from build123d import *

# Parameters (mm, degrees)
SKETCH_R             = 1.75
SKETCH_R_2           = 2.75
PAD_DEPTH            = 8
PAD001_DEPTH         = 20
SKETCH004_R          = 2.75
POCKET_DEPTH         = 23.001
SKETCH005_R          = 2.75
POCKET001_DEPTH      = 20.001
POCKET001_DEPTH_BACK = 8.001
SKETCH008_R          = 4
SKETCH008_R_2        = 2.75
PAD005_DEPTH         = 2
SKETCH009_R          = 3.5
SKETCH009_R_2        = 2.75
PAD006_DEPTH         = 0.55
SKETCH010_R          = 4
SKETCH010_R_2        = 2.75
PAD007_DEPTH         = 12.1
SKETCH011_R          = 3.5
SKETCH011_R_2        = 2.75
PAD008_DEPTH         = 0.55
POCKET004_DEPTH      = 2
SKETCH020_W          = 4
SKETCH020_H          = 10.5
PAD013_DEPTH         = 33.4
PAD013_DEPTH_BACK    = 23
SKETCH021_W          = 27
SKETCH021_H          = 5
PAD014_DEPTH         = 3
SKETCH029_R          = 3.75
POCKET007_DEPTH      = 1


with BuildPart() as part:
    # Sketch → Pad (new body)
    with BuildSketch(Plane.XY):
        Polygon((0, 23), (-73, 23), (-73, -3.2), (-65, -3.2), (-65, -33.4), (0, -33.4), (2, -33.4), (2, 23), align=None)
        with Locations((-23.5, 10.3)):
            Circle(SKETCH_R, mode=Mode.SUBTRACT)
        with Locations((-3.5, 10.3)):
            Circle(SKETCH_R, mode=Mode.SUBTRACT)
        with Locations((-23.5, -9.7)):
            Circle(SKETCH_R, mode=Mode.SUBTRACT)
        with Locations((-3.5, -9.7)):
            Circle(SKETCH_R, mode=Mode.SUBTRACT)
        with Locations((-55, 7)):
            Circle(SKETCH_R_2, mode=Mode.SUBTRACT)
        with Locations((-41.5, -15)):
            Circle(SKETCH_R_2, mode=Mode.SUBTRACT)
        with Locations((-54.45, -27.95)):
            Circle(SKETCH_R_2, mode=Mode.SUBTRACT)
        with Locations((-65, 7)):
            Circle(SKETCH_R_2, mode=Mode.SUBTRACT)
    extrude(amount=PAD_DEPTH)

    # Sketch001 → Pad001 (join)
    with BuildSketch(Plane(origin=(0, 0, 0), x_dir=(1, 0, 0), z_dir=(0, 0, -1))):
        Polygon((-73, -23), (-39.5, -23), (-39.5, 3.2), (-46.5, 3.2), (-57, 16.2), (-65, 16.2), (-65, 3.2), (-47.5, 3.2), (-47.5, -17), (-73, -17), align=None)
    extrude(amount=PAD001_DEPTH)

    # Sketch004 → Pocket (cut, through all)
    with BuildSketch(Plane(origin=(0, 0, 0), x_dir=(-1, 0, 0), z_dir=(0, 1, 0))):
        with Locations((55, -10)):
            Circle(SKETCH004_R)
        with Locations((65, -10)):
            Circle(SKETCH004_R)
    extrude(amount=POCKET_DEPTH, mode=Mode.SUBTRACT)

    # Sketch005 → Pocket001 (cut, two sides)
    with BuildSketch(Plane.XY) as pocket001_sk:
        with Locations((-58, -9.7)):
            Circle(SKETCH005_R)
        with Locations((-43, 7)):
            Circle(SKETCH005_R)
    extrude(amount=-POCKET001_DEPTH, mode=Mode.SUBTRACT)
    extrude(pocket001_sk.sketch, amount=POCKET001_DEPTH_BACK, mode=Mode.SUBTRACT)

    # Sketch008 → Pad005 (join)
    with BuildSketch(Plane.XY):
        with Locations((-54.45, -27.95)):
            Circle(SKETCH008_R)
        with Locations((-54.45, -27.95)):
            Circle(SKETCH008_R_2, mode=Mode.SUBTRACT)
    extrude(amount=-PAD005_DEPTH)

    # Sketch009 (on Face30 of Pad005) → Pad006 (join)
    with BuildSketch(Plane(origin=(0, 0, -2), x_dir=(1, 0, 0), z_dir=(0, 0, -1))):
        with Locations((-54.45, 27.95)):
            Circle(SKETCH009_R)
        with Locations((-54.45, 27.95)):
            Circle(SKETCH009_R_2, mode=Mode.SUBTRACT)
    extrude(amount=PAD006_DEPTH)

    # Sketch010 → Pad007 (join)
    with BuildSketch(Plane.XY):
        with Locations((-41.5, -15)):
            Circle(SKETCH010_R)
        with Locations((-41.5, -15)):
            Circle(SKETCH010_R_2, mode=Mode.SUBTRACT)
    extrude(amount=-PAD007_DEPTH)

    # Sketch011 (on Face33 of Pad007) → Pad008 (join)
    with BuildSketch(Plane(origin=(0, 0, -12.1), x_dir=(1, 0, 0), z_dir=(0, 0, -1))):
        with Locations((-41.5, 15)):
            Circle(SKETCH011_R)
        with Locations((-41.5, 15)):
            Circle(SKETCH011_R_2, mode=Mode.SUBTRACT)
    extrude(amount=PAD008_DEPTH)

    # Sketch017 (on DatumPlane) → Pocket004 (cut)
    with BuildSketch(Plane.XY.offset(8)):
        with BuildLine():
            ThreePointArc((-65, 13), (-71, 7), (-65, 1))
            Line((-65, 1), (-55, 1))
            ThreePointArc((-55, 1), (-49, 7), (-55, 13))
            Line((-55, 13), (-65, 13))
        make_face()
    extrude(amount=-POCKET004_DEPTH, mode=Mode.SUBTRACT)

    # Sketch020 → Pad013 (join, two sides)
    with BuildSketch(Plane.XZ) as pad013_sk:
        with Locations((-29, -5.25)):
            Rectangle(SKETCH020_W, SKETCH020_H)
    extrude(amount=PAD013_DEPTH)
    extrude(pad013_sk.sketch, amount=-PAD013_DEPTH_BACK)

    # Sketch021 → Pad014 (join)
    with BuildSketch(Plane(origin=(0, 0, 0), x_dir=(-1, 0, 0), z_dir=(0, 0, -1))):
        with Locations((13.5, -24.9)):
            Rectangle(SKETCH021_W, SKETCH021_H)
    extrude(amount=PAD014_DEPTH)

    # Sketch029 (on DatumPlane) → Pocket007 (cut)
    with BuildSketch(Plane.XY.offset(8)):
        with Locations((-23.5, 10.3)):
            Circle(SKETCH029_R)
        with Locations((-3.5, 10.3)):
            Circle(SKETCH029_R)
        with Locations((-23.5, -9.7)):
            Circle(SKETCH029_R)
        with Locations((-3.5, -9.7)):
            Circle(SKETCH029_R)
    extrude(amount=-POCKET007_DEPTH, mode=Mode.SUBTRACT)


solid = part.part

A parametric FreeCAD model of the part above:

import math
import FreeCAD as App
import Part
import Sketcher

V = App.Vector
Q = App.Units.Quantity

doc = App.newDocument("Part")
body = doc.addObject("PartDesign::Body", "Body")

# Sketch on XY plane
sketch1 = body.newObject("Sketcher::SketchObject", "Sketch")
sketch1.AttachmentSupport = (doc.getObject("XY_Plane"), [""])
sketch1.MapMode = "FlatFace"
sketch1.addGeometry([
    Part.LineSegment(V(-73, 23, 0), V(-73, -3.2, 0)),  # 0
    Part.LineSegment(V(-73, -3.2, 0), V(-65, -3.2, 0)),  # 1
    Part.LineSegment(V(-65, -3.2, 0), V(-65, -33.4, 0)),  # 2
    Part.LineSegment(V(-65, -33.4, 0), V(2, -33.4, 0)),  # 3
    Part.LineSegment(V(2, -33.4, 0), V(2, 23, 0)),  # 4
    Part.LineSegment(V(2, 23, 0), V(-73, 23, 0)),  # 5
    Part.Circle(V(-54.45, -27.95, 0), V(0, 0, 1), 2.75),  # 6
    Part.Circle(V(-41.5, -15, 0), V(0, 0, 1), 2.75),  # 7
    Part.Circle(V(-23.5, -9.7, 0), V(0, 0, 1), 1.75),  # 8
    Part.Circle(V(-3.5, -9.7, 0), V(0, 0, 1), 1.75),  # 9
    Part.Circle(V(-65, 7, 0), V(0, 0, 1), 2.75),  # 10
    Part.Circle(V(-55, 7, 0), V(0, 0, 1), 2.75),  # 11
    Part.Circle(V(-23.5, 10.3, 0), V(0, 0, 1), 1.75),  # 12
    Part.Circle(V(-3.5, 10.3, 0), V(0, 0, 1), 1.75),  # 13
], False)
sketch1.addConstraint([
    Sketcher.Constraint("Coincident", 0, 2, 1, 1),
    Sketcher.Constraint("Coincident", 1, 2, 2, 1),
    Sketcher.Constraint("Coincident", 2, 2, 3, 1),
    Sketcher.Constraint("Coincident", 3, 2, 4, 1),
    Sketcher.Constraint("Coincident", 4, 2, 5, 1),
    Sketcher.Constraint("Coincident", 5, 2, 0, 1),
    Sketcher.Constraint("Vertical", 0),
    Sketcher.Constraint("Horizontal", 1),
    Sketcher.Constraint("Vertical", 2),
    Sketcher.Constraint("Horizontal", 3),
    Sketcher.Constraint("Vertical", 4),
    Sketcher.Constraint("Horizontal", 5),
    Sketcher.Constraint("Equal", 6, 7),
    Sketcher.Constraint("Equal", 8, 9),
    Sketcher.Constraint("Equal", 7, 10),
    Sketcher.Constraint("Equal", 10, 11),
    Sketcher.Constraint("Equal", 9, 12),
    Sketcher.Constraint("Equal", 12, 13),
    Sketcher.Constraint("Horizontal", 8, 3, 9, 3),
    Sketcher.Constraint("Horizontal", 10, 3, 11, 3),
    Sketcher.Constraint("Horizontal", 12, 3, 13, 3),
    Sketcher.Constraint("Vertical", 8, 3, 12, 3),
    Sketcher.Constraint("Vertical", 9, 3, 13, 3),
    Sketcher.Constraint("Vertical", 10, 3, 1, 2),
    Sketcher.Constraint("Diameter", 6, Q("5.5 mm")),
    Sketcher.Constraint("Diameter", 8, Q("3.5 mm")),
    Sketcher.Constraint("DistanceX", 1, 1, 1, 2, Q("8 mm")),
    Sketcher.Constraint("DistanceX", 3, 1, 3, 2, Q("67 mm")),
    Sketcher.Constraint("DistanceY", 0, 2, 0, 1, Q("26.2 mm")),
    Sketcher.Constraint("DistanceY", 2, 2, 2, 1, Q("30.2 mm")),
    Sketcher.Constraint("DistanceY", 7, 3, -1, 1, Q("15 mm")),
    Sketcher.Constraint("DistanceX", 10, 3, -1, 1, Q("65 mm")),
    Sketcher.Constraint("DistanceY", -1, 1, 10, 3, Q("7 mm")),
    Sketcher.Constraint("DistanceX", 11, 3, -1, 1, Q("55 mm")),
    Sketcher.Constraint("DistanceY", -1, 1, 4, 2, Q("23 mm")),
    Sketcher.Constraint("DistanceX", 7, 3, 8, 3, Q("18 mm")),
    Sketcher.Constraint("DistanceX", 8, 3, 9, 3, Q("20 mm")),
    Sketcher.Constraint("DistanceY", 8, 3, 12, 3, Q("20 mm")),
    Sketcher.Constraint("DistanceX", 7, 3, -1, 1, Q("41.5 mm")),
    Sketcher.Constraint("DistanceY", 8, 3, -1, 1, Q("9.7 mm")),
    Sketcher.Constraint("DistanceX", 6, 3, -1, 1, Q("54.45 mm")),
    Sketcher.Constraint("DistanceY", 6, 3, -1, 1, Q("27.95 mm")),
])
pad1 = body.newObject("PartDesign::Pad", "Pad")
pad1.Profile = sketch1
pad1.Length = 8

# Sketch on XY plane
sketch2 = body.newObject("Sketcher::SketchObject", "Sketch001")
sketch2.AttachmentSupport = (doc.getObject("XY_Plane"), [""])
sketch2.MapMode = "FlatFace"
sketch2.addGeometry([
    Part.LineSegment(V(-73, 23, 0), V(-39.5, 23, 0)),  # 0
    Part.LineSegment(V(-39.5, 23, 0), V(-39.5, -3.2, 0)),  # 1
    Part.LineSegment(V(-39.5, -3.2, 0), V(-46.5, -3.2, 0)),  # 2
    Part.LineSegment(V(-46.5, -3.2, 0), V(-57, -16.2, 0)),  # 3
    Part.LineSegment(V(-57, -16.2, 0), V(-65, -16.2, 0)),  # 4
    Part.LineSegment(V(-65, -16.2, 0), V(-65, -3.2, 0)),  # 5
    Part.LineSegment(V(-65, -3.2, 0), V(-47.5, -3.2, 0)),  # 6
    Part.LineSegment(V(-47.5, -3.2, 0), V(-47.5, 17, 0)),  # 7
    Part.LineSegment(V(-47.5, 17, 0), V(-73, 17, 0)),  # 8
    Part.LineSegment(V(-73, 17, 0), V(-73, 23, 0)),  # 9
], False)
sketch2.addConstraint([
    Sketcher.Constraint("Coincident", 0, 2, 1, 1),
    Sketcher.Constraint("Coincident", 1, 2, 2, 1),
    Sketcher.Constraint("Coincident", 2, 2, 3, 1),
    Sketcher.Constraint("Coincident", 3, 2, 4, 1),
    Sketcher.Constraint("Coincident", 4, 2, 5, 1),
    Sketcher.Constraint("Coincident", 5, 2, 6, 1),
    Sketcher.Constraint("Coincident", 6, 2, 7, 1),
    Sketcher.Constraint("Coincident", 7, 2, 8, 1),
    Sketcher.Constraint("Coincident", 8, 2, 9, 1),
    Sketcher.Constraint("Coincident", 9, 2, 0, 1),
    Sketcher.Constraint("Horizontal", 0),
    Sketcher.Constraint("Vertical", 1),
    Sketcher.Constraint("Horizontal", 2),
    Sketcher.Constraint("Horizontal", 4),
    Sketcher.Constraint("Vertical", 5),
    Sketcher.Constraint("Horizontal", 6),
    Sketcher.Constraint("Vertical", 7),
    Sketcher.Constraint("Horizontal", 8),
    Sketcher.Constraint("Vertical", 9),
    Sketcher.Constraint("Horizontal", 2, 2, 5, 2),
    Sketcher.Constraint("DistanceX", 2, 2, 2, 1, Q("7 mm")),
    Sketcher.Constraint("DistanceX", 4, 2, 4, 1, Q("8 mm")),
    Sketcher.Constraint("DistanceY", 5, 1, 5, 2, Q("13 mm")),
    Sketcher.Constraint("DistanceY", 9, 1, 9, 2, Q("6 mm")),
    Sketcher.Constraint("DistanceX", 0, 1, 0, 2, Q("33.5 mm")),
    Sketcher.Constraint("DistanceX", 6, 1, 6, 2, Q("17.5 mm")),
    Sketcher.Constraint("DistanceX", 8, 2, 8, 1, Q("25.5 mm")),
    Sketcher.Constraint("DistanceY", 1, 2, 1, 1, Q("26.2 mm")),
    Sketcher.Constraint("DistanceY", -1, 1, 0, 2, Q("23 mm")),
    Sketcher.Constraint("DistanceX", 3, 2, -1, 1, Q("57 mm")),
])
pad2 = body.newObject("PartDesign::Pad", "Pad001")
pad2.Profile = sketch2
pad2.Length = 20
pad2.Reversed = True

# Sketch on XZ plane
sketch3 = body.newObject("Sketcher::SketchObject", "Sketch002")
sketch3.AttachmentSupport = (doc.getObject("XZ_Plane"), [""])
sketch3.MapMode = "FlatFace"
sketch3.addGeometry([
    Part.Circle(V(-55, -10, 0), V(0, 0, 1), 2.75),
    Part.Circle(V(-65, -10, 0), V(0, 0, 1), 2.75),
], False)
sketch3.addConstraint([
    Sketcher.Constraint("Equal", 0, 1),
    Sketcher.Constraint("Horizontal", 0, 3, 1, 3),
    Sketcher.Constraint("Diameter", 0, Q("5.5 mm")),
    Sketcher.Constraint("DistanceX", 0, 3, -1, 1, Q("55 mm")),
    Sketcher.Constraint("DistanceY", 0, 3, -1, 1, Q("10 mm")),
    Sketcher.Constraint("DistanceX", 1, 3, -1, 1, Q("65 mm")),
])
pocket1 = body.newObject("PartDesign::Pocket", "Pocket")
pocket1.Profile = sketch3
pocket1.Type = "ThroughAll"

# Sketch on XY plane
sketch4 = body.newObject("Sketcher::SketchObject", "Sketch003")
sketch4.AttachmentSupport = (doc.getObject("XY_Plane"), [""])
sketch4.MapMode = "FlatFace"
sketch4.addGeometry([
    Part.Circle(V(-58, -9.7, 0), V(0, 0, 1), 2.75),
    Part.Circle(V(-43, 7, 0), V(0, 0, 1), 2.75),
], False)
sketch4.addConstraint([
    Sketcher.Constraint("Equal", 0, 1),
    Sketcher.Constraint("Diameter", 0, Q("5.5 mm")),
    Sketcher.Constraint("DistanceX", 0, 3, -1, 1, Q("58 mm")),
    Sketcher.Constraint("DistanceX", 1, 3, -1, 1, Q("43 mm")),
    Sketcher.Constraint("DistanceY", -1, 1, 1, 3, Q("7 mm")),
    Sketcher.Constraint("DistanceY", 0, 3, -1, 1, Q("9.7 mm")),
])
pocket2 = body.newObject("PartDesign::Pocket", "Pocket001")
pocket2.Profile = sketch4
pocket2.Type = "ThroughAll"
pocket2.Midplane = True

# Sketch on XY plane
sketch5 = body.newObject("Sketcher::SketchObject", "Sketch004")
sketch5.AttachmentSupport = (doc.getObject("XY_Plane"), [""])
sketch5.MapMode = "FlatFace"
sketch5.addGeometry([
    Part.Circle(V(-54.45, -27.95, 0), V(0, 0, 1), 4),
    Part.Circle(V(-54.45, -27.95, 0), V(0, 0, 1), 2.75),
], False)
sketch5.addConstraint([
    Sketcher.Constraint("Coincident", 1, 3, 0, 3),
    Sketcher.Constraint("Diameter", 0, Q("8 mm")),
    Sketcher.Constraint("Diameter", 1, Q("5.5 mm")),
    Sketcher.Constraint("DistanceX", 0, 3, -1, 1, Q("54.45 mm")),
    Sketcher.Constraint("DistanceY", 0, 3, -1, 1, Q("27.95 mm")),
])
pad3 = body.newObject("PartDesign::Pad", "Pad002")
pad3.Profile = sketch5
pad3.Length = 2
pad3.Reversed = True

# Sketch on XY plane
sketch6 = body.newObject("Sketcher::SketchObject", "Sketch005")
sketch6.AttachmentSupport = (doc.getObject("XY_Plane"), [""])
sketch6.MapMode = "FlatFace"
sketch6.AttachmentOffset = App.Placement(V(0, 0, -2), App.Rotation())
sketch6.addGeometry([
    Part.Circle(V(-54.45, -27.95, 0), V(0, 0, 1), 3.5),
    Part.Circle(V(-54.45, -27.95, 0), V(0, 0, 1), 2.75),
], False)
sketch6.addConstraint([
    Sketcher.Constraint("Coincident", 1, 3, 0, 3),
    Sketcher.Constraint("Diameter", 0, Q("7 mm")),
    Sketcher.Constraint("Diameter", 1, Q("5.5 mm")),
    Sketcher.Constraint("DistanceX", 0, 3, -1, 1, Q("54.45 mm")),
    Sketcher.Constraint("DistanceY", 0, 3, -1, 1, Q("27.95 mm")),
])
pad4 = body.newObject("PartDesign::Pad", "Pad003")
pad4.Profile = sketch6
pad4.Length = 0.55
pad4.Reversed = True

# Sketch on XY plane
sketch7 = body.newObject("Sketcher::SketchObject", "Sketch006")
sketch7.AttachmentSupport = (doc.getObject("XY_Plane"), [""])
sketch7.MapMode = "FlatFace"
sketch7.addGeometry([
    Part.Circle(V(-41.5, -15, 0), V(0, 0, 1), 4),
    Part.Circle(V(-41.5, -15, 0), V(0, 0, 1), 2.75),
], False)
sketch7.addConstraint([
    Sketcher.Constraint("Coincident", 1, 3, 0, 3),
    Sketcher.Constraint("Diameter", 0, Q("8 mm")),
    Sketcher.Constraint("Diameter", 1, Q("5.5 mm")),
    Sketcher.Constraint("DistanceY", 0, 3, -1, 1, Q("15 mm")),
    Sketcher.Constraint("DistanceX", 0, 3, -1, 1, Q("41.5 mm")),
])
pad5 = body.newObject("PartDesign::Pad", "Pad004")
pad5.Profile = sketch7
pad5.Length = 12.1
pad5.Reversed = True

# Sketch on XY plane
sketch8 = body.newObject("Sketcher::SketchObject", "Sketch007")
sketch8.AttachmentSupport = (doc.getObject("XY_Plane"), [""])
sketch8.MapMode = "FlatFace"
sketch8.AttachmentOffset = App.Placement(V(0, 0, -12.1), App.Rotation())
sketch8.addGeometry([
    Part.Circle(V(-41.5, -15, 0), V(0, 0, 1), 3.5),
    Part.Circle(V(-41.5, -15, 0), V(0, 0, 1), 2.75),
], False)
sketch8.addConstraint([
    Sketcher.Constraint("Coincident", 1, 3, 0, 3),
    Sketcher.Constraint("Diameter", 0, Q("7 mm")),
    Sketcher.Constraint("Diameter", 1, Q("5.5 mm")),
    Sketcher.Constraint("DistanceY", 0, 3, -1, 1, Q("15 mm")),
    Sketcher.Constraint("DistanceX", 0, 3, -1, 1, Q("41.5 mm")),
])
pad6 = body.newObject("PartDesign::Pad", "Pad005")
pad6.Profile = sketch8
pad6.Length = 0.55
pad6.Reversed = True

# Sketch on XY plane
sketch9 = body.newObject("Sketcher::SketchObject", "Sketch008")
sketch9.AttachmentSupport = (doc.getObject("XY_Plane"), [""])
sketch9.MapMode = "FlatFace"
sketch9.AttachmentOffset = App.Placement(V(0, 0, 8), App.Rotation())
sketch9.addGeometry([
    Part.ArcOfCircle(Part.Circle(V(-65, 7, 0), V(0, 0, 1), 6), math.radians(90), math.radians(270)),
    Part.LineSegment(V(-65, 1, 0), V(-55, 1, 0)),
    Part.ArcOfCircle(Part.Circle(V(-55, 7, 0), V(0, 0, 1), 6), math.radians(-90), math.radians(90)),
    Part.LineSegment(V(-55, 13, 0), V(-65, 13, 0)),
], False)
sketch9.addConstraint([
    Sketcher.Constraint("Tangent", 0, 2, 1, 1),
    Sketcher.Constraint("Tangent", 1, 2, 2, 1),
    Sketcher.Constraint("Tangent", 2, 2, 3, 1),
    Sketcher.Constraint("Tangent", 3, 2, 0, 1),
    Sketcher.Constraint("Horizontal", 1),
    Sketcher.Constraint("Horizontal", 3),
    Sketcher.Constraint("Radius", 0, Q("6 mm")),
    Sketcher.Constraint("DistanceX", 1, 1, 1, 2, Q("10 mm")),
    Sketcher.Constraint("DistanceX", 0, 3, -1, 1, Q("65 mm")),
    Sketcher.Constraint("DistanceY", -1, 1, 0, 3, Q("7 mm")),
])
pocket3 = body.newObject("PartDesign::Pocket", "Pocket002")
pocket3.Profile = sketch9
pocket3.Length = 2

# Sketch on XZ plane
sketch10 = body.newObject("Sketcher::SketchObject", "Sketch009")
sketch10.AttachmentSupport = (doc.getObject("XZ_Plane"), [""])
sketch10.MapMode = "FlatFace"
sketch10.addGeometry([
    Part.LineSegment(V(-31, 0, 0), V(-31, -10.5, 0)),
    Part.LineSegment(V(-31, -10.5, 0), V(-27, -10.5, 0)),
    Part.LineSegment(V(-27, -10.5, 0), V(-27, 0, 0)),
    Part.LineSegment(V(-27, 0, 0), V(-31, 0, 0)),
], False)
sketch10.addConstraint([
    Sketcher.Constraint("Coincident", 0, 2, 1, 1),
    Sketcher.Constraint("Coincident", 1, 2, 2, 1),
    Sketcher.Constraint("Coincident", 2, 2, 3, 1),
    Sketcher.Constraint("Coincident", 3, 2, 0, 1),
    Sketcher.Constraint("Vertical", 0),
    Sketcher.Constraint("Horizontal", 1),
    Sketcher.Constraint("Vertical", 2),
    Sketcher.Constraint("Horizontal", 3),
    Sketcher.Constraint("PointOnObject", 2, 2, -1),
    Sketcher.Constraint("DistanceX", 1, 1, 1, 2, Q("4 mm")),
    Sketcher.Constraint("DistanceY", 0, 2, 0, 1, Q("10.5 mm")),
    Sketcher.Constraint("DistanceX", 0, 2, -1, 1, Q("31 mm")),
])
pad7 = body.newObject("PartDesign::Pad", "Pad006")
pad7.Profile = sketch10
pad7.Type = "TwoLengths"
pad7.Length = 33.4
pad7.Length2 = 23

# Sketch on XY plane
sketch11 = body.newObject("Sketcher::SketchObject", "Sketch010")
sketch11.AttachmentSupport = (doc.getObject("XY_Plane"), [""])
sketch11.MapMode = "FlatFace"
sketch11.addGeometry([
    Part.LineSegment(V(0, -22.4, 0), V(0, -27.4, 0)),
    Part.LineSegment(V(0, -27.4, 0), V(-27, -27.4, 0)),
    Part.LineSegment(V(-27, -27.4, 0), V(-27, -22.4, 0)),
    Part.LineSegment(V(-27, -22.4, 0), V(0, -22.4, 0)),
], False)
sketch11.addConstraint([
    Sketcher.Constraint("Coincident", 0, 2, 1, 1),
    Sketcher.Constraint("Coincident", 1, 2, 2, 1),
    Sketcher.Constraint("Coincident", 2, 2, 3, 1),
    Sketcher.Constraint("Coincident", 3, 2, 0, 1),
    Sketcher.Constraint("Vertical", 0),
    Sketcher.Constraint("Horizontal", 1),
    Sketcher.Constraint("Vertical", 2),
    Sketcher.Constraint("Horizontal", 3),
    Sketcher.Constraint("PointOnObject", 0, 2, -2),
    Sketcher.Constraint("DistanceX", 1, 2, 1, 1, Q("27 mm")),
    Sketcher.Constraint("DistanceY", 0, 2, 0, 1, Q("5 mm")),
    Sketcher.Constraint("DistanceY", 0, 2, -1, 1, Q("27.4 mm")),
])
pad8 = body.newObject("PartDesign::Pad", "Pad007")
pad8.Profile = sketch11
pad8.Length = 3
pad8.Reversed = True

# Sketch on XY plane
sketch12 = body.newObject("Sketcher::SketchObject", "Sketch011")
sketch12.AttachmentSupport = (doc.getObject("XY_Plane"), [""])
sketch12.MapMode = "FlatFace"
sketch12.AttachmentOffset = App.Placement(V(0, 0, 8), App.Rotation())
sketch12.addGeometry([
    Part.Circle(V(-23.5, 10.3, 0), V(0, 0, 1), 3.75),
    Part.Circle(V(-3.5, 10.3, 0), V(0, 0, 1), 3.75),
    Part.Circle(V(-23.5, -9.7, 0), V(0, 0, 1), 3.75),
    Part.Circle(V(-3.5, -9.7, 0), V(0, 0, 1), 3.75),
], False)
sketch12.addConstraint([
    Sketcher.Constraint("Equal", 0, 1),
    Sketcher.Constraint("Equal", 1, 2),
    Sketcher.Constraint("Equal", 2, 3),
    Sketcher.Constraint("Horizontal", 0, 3, 1, 3),
    Sketcher.Constraint("Horizontal", 2, 3, 3, 3),
    Sketcher.Constraint("Vertical", 0, 3, 2, 3),
    Sketcher.Constraint("Vertical", 1, 3, 3, 3),
    Sketcher.Constraint("Diameter", 0, Q("7.5 mm")),
    Sketcher.Constraint("DistanceX", 0, 3, 1, 3, Q("20 mm")),
    Sketcher.Constraint("DistanceY", 2, 3, 0, 3, Q("20 mm")),
    Sketcher.Constraint("DistanceX", 0, 3, -1, 1, Q("23.5 mm")),
    Sketcher.Constraint("DistanceY", -1, 1, 0, 3, Q("10.3 mm")),
])
pocket4 = body.newObject("PartDesign::Pocket", "Pocket003")
pocket4.Profile = sketch12
pocket4.Length = 1

doc.recompute()
